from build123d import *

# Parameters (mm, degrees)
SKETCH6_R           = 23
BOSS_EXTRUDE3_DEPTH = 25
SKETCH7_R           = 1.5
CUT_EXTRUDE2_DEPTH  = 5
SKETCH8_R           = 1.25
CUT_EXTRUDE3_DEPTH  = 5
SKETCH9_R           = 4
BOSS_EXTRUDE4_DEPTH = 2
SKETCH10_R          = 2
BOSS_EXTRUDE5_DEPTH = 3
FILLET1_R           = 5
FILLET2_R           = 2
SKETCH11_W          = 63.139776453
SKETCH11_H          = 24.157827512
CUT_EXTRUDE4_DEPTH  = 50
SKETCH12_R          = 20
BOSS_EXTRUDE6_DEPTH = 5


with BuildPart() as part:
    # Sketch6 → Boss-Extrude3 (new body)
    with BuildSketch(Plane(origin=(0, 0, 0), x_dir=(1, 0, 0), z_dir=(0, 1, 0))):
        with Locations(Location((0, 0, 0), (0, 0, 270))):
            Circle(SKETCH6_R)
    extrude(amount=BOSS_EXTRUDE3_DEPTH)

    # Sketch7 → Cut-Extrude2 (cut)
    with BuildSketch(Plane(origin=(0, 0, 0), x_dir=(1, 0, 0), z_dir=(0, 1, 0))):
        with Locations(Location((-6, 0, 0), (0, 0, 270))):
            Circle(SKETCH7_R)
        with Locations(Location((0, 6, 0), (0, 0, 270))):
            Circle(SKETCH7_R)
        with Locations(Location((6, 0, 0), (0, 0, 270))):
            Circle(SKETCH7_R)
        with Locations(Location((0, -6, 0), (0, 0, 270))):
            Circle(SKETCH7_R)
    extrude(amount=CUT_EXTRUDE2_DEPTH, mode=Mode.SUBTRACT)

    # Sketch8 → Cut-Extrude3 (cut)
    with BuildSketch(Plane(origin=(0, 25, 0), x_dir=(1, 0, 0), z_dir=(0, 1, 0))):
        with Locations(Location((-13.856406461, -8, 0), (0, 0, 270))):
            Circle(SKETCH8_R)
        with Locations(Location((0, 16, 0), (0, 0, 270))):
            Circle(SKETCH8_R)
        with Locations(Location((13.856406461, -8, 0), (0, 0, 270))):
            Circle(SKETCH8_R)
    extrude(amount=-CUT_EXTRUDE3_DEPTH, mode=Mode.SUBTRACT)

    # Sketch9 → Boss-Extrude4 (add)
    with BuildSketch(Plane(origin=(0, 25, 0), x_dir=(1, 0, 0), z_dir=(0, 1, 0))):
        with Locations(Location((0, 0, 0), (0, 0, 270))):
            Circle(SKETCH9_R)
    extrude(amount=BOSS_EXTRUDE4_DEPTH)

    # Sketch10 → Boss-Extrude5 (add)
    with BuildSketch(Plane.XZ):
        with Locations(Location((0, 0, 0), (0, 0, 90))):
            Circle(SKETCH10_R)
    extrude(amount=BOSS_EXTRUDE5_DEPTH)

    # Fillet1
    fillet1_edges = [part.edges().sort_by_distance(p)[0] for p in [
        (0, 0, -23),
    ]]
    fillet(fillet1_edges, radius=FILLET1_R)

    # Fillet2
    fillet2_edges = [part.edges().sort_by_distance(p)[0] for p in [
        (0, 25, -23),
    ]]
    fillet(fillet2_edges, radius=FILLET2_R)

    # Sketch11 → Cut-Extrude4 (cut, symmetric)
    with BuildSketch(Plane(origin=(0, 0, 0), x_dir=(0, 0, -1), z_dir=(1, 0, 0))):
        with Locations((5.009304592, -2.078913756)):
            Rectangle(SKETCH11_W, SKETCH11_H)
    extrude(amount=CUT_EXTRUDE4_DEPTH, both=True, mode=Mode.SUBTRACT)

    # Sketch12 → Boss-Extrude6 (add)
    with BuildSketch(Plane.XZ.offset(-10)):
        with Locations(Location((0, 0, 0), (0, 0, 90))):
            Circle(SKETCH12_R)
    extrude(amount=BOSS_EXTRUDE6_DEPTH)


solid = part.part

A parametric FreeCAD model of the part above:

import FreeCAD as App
import Part
import Sketcher
from FreeCAD import Vector


def edges_at(feature, points):
    """Names of the edges that pass closest to the given points."""
    edges = feature.Shape.Edges
    near = lambda p: min(range(len(edges)), key=lambda i: edges[i].distToShape(Part.Vertex(*p))[0])
    return sorted({f"Edge{near(p) + 1}" for p in points})

doc = App.newDocument("Part")
body = doc.addObject("PartDesign::Body", "Body")

# Sketch on XZ plane
sketch1 = doc.addObject("Sketcher::SketchObject", "Sketch")
body.addObject(sketch1)
sketch1.AttachmentSupport = (doc.XZ_Plane, [""])
sketch1.MapMode = "FlatFace"
sketch1.addGeometry(Part.Circle(Vector(0, 0, 0), Vector(0, 0, 1), 23), False)
sketch1.addConstraint(Sketcher.Constraint("Coincident", 0, 3, -1, 1))
sketch1.addConstraint(Sketcher.Constraint("Diameter", 0, 46.0))
pad1 = doc.addObject("PartDesign::Pad", "Pad")
body.addObject(pad1)
pad1.Profile = sketch1
pad1.Length = 25
pad1.Reversed = True

# Sketch on XZ plane
sketch2 = doc.addObject("Sketcher::SketchObject", "Sketch001")
body.addObject(sketch2)
sketch2.AttachmentSupport = (doc.XZ_Plane, [""])
sketch2.MapMode = "FlatFace"
sketch2.addGeometry(Part.Circle(Vector(-6, 0, 0), Vector(0, 0, 1), 1.5), False)
sketch2.addGeometry(Part.Circle(Vector(0, -6, 0), Vector(0, 0, 1), 1.5), False)
sketch2.addGeometry(Part.Circle(Vector(6, 0, 0), Vector(0, 0, 1), 1.5), False)
sketch2.addGeometry(Part.Circle(Vector(0, 6, 0), Vector(0, 0, 1), 1.5), False)
sketch2.addConstraint(Sketcher.Constraint("Equal", 0, 1))
sketch2.addConstraint(Sketcher.Constraint("Equal", 1, 2))
sketch2.addConstraint(Sketcher.Constraint("Equal", 2, 3))
sketch2.addConstraint(Sketcher.Constraint("Symmetric", 0, 3, 2, 3, -1, 1))
sketch2.addConstraint(Sketcher.Constraint("Symmetric", 1, 3, 3, 3, -1, 1))
sketch2.addConstraint(Sketcher.Constraint("PointOnObject", 0, 3, -1))
sketch2.addConstraint(Sketcher.Constraint("PointOnObject", 1, 3, -2))
sketch2.addConstraint(Sketcher.Constraint("Diameter", 0, 3.0))
sketch2.addConstraint(Sketcher.Constraint("DistanceX", 0, 3, -1, 1, 6.0))
sketch2.addConstraint(Sketcher.Constraint("DistanceY", 1, 3, -1, 1, 6.0))
pocket1 = doc.addObject("PartDesign::Pocket", "Pocket")
body.addObject(pocket1)
pocket1.Profile = sketch2
pocket1.Length = 5

# Sketch on XZ plane
sketch3 = doc.addObject("Sketcher::SketchObject", "Sketch002")
body.addObject(sketch3)
sketch3.AttachmentSupport = (doc.XZ_Plane, [""])
sketch3.MapMode = "FlatFace"
sketch3.AttachmentOffset = App.Placement(Vector(0, 0, -25), App.Rotation())
sketch3.addGeometry(Part.Circle(Vector(-13.9, 8, 0), Vector(0, 0, 1), 1.2), False)
sketch3.addGeometry(Part.Circle(Vector(0, -16, 0), Vector(0, 0, 1), 1.2), False)
sketch3.addGeometry(Part.Circle(Vector(13.9, 8, 0), Vector(0, 0, 1), 1.2), False)
sketch3.addConstraint(Sketcher.Constraint("Equal", 0, 1))
sketch3.addConstraint(Sketcher.Constraint("Equal", 1, 2))
sketch3.addConstraint(Sketcher.Constraint("Symmetric", 0, 3, 2, 3, -2))
sketch3.addConstraint(Sketcher.Constraint("PointOnObject", 1, 3, -2))
sketch3.addConstraint(Sketcher.Constraint("Diameter", 0, 2.5))
sketch3.addConstraint(Sketcher.Constraint("DistanceY", -1, 1, 0, 3, 8.0))
sketch3.addConstraint(Sketcher.Constraint("DistanceY", 1, 3, -1, 1, 16.0))
sketch3.addConstraint(Sketcher.Constraint("DistanceX", 0, 3, -1, 1, 13.856406))
pocket2 = doc.addObject("PartDesign::Pocket", "Pocket001")
body.addObject(pocket2)
pocket2.Profile = sketch3
pocket2.Length = 5
pocket2.Reversed = True

# Sketch on XZ plane
sketch4 = doc.addObject("Sketcher::SketchObject", "Sketch003")
body.addObject(sketch4)
sketch4.AttachmentSupport = (doc.XZ_Plane, [""])
sketch4.MapMode = "FlatFace"
sketch4.AttachmentOffset = App.Placement(Vector(0, 0, -25), App.Rotation())
sketch4.addGeometry(Part.Circle(Vector(0, 0, 0), Vector(0, 0, 1), 4), False)
sketch4.addConstraint(Sketcher.Constraint("Coincident", 0, 3, -1, 1))
sketch4.addConstraint(Sketcher.Constraint("Diameter", 0, 8.0))
pad2 = doc.addObject("PartDesign::Pad", "Pad001")
body.addObject(pad2)
pad2.Profile = sketch4
pad2.Length = 2
pad2.Reversed = True

# Sketch on XZ plane
sketch5 = doc.addObject("Sketcher::SketchObject", "Sketch004")
body.addObject(sketch5)
sketch5.AttachmentSupport = (doc.XZ_Plane, [""])
sketch5.MapMode = "FlatFace"
sketch5.addGeometry(Part.Circle(Vector(0, 0, 0), Vector(0, 0, 1), 2), False)
sketch5.addConstraint(Sketcher.Constraint("Coincident", 0, 3, -1, 1))
sketch5.addConstraint(Sketcher.Constraint("Diameter", 0, 4.0))
pad3 = doc.addObject("PartDesign::Pad", "Pad002")
body.addObject(pad3)
pad3.Profile = sketch5
pad3.Length = 3
doc.recompute()

fillet = doc.addObject("PartDesign::Fillet", "Fillet")
body.addObject(fillet)
fillet.Base = (pad3, edges_at(pad3, [(0, 0, -23)]))
fillet.Radius = 5
doc.recompute()

fillet2 = doc.addObject("PartDesign::Fillet", "Fillet001")
body.addObject(fillet2)
fillet2.Base = (fillet, edges_at(fillet, [(0, 25, -23)]))
fillet2.Radius = 2

# Sketch on YZ plane
sketch6 = doc.addObject("Sketcher::SketchObject", "Sketch005")
body.addObject(sketch6)
sketch6.AttachmentSupport = (doc.YZ_Plane, [""])
sketch6.MapMode = "FlatFace"
sketch6.addGeometry(Part.LineSegment(Vector(10, 27, 0), Vector(-14, 27, 0)), False)
sketch6.addGeometry(Part.LineSegment(Vector(-14, 27, 0), Vector(-14, -37, 0)), False)
sketch6.addGeometry(Part.LineSegment(Vector(-14, -37, 0), Vector(10, -37, 0)), False)
sketch6.addGeometry(Part.LineSegment(Vector(10, -37, 0), Vector(10, 27, 0)), False)
sketch6.addConstraint(Sketcher.Constraint("Coincident", 0, 2, 1, 1))
sketch6.addConstraint(Sketcher.Constraint("Coincident", 1, 2, 2, 1))
sketch6.addConstraint(Sketcher.Constraint("Coincident", 2, 2, 3, 1))
sketch6.addConstraint(Sketcher.Constraint("Coincident", 3, 2, 0, 1))
sketch6.addConstraint(Sketcher.Constraint("Horizontal", 0))
sketch6.addConstraint(Sketcher.Constraint("Vertical", 1))
sketch6.addConstraint(Sketcher.Constraint("Horizontal", 2))
sketch6.addConstraint(Sketcher.Constraint("Vertical", 3))
sketch6.addConstraint(Sketcher.Constraint("DistanceX", -1, 1, 2, 2, 10.0))
sketch6.addConstraint(Sketcher.Constraint("DistanceX", 0, 2, 0, 1, 24.157828))
sketch6.addConstraint(Sketcher.Constraint("DistanceY", 1, 2, 1, 1, 63.139776))
sketch6.addConstraint(Sketcher.Constraint("DistanceY", -1, 1, 0, 2, 26.560584))
pocket3 = doc.addObject("PartDesign::Pocket", "Pocket002")
body.addObject(pocket3)
pocket3.Profile = sketch6
pocket3.Length = 100
pocket3.Midplane = True

# Sketch on XZ plane
sketch7 = doc.addObject("Sketcher::SketchObject", "Sketch006")
body.addObject(sketch7)
sketch7.AttachmentSupport = (doc.XZ_Plane, [""])
sketch7.MapMode = "FlatFace"
sketch7.AttachmentOffset = App.Placement(Vector(0, 0, -10), App.Rotation())
sketch7.addGeometry(Part.Circle(Vector(0, 0, 0), Vector(0, 0, 1), 20), False)
sketch7.addConstraint(Sketcher.Constraint("Coincident", 0, 3, -1, 1))
sketch7.addConstraint(Sketcher.Constraint("Diameter", 0, 40.0))
pad4 = doc.addObject("PartDesign::Pad", "Pad003")
body.addObject(pad4)
pad4.Profile = sketch7
pad4.Length = 5

doc.recompute()
